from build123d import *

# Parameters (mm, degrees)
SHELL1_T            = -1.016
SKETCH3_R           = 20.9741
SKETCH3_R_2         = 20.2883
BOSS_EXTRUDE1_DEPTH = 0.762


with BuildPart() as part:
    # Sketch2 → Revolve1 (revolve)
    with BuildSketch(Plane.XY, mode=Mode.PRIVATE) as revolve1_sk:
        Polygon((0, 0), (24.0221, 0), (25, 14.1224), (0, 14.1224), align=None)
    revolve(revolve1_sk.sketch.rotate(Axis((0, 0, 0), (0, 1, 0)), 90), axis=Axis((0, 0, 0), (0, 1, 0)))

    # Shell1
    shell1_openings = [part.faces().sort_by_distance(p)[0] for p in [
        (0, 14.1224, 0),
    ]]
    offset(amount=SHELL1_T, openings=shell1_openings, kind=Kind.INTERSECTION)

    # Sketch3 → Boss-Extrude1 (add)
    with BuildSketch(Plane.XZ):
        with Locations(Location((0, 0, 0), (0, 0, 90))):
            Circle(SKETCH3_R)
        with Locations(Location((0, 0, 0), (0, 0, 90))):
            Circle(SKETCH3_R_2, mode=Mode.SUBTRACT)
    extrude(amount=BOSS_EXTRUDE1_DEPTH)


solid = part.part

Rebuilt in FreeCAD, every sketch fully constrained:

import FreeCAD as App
import Part
import Sketcher
Q = App.Units.Quantity


def faces_at(feature, points):
    """Names of the faces that lie closest to the given points."""
    faces = feature.Shape.Faces
    near = lambda p: min(range(len(faces)), key=lambda i: faces[i].distToShape(Part.Vertex(*p))[0])
    return sorted({f"Face{near(p) + 1}" for p in points})

doc = App.newDocument("Part")
body = doc.addObject("PartDesign::Body", "Body")

# Sketch on XY plane
sketch1 = body.newObject("Sketcher::SketchObject", "Sketch")
sketch1.AttachmentSupport = (doc.getObject("XY_Plane"), [""])
sketch1.MapMode = "FlatFace"
sketch1.addGeometry(Part.LineSegment(App.Vector(0, 0, 0), App.Vector(24, 0, 0)), False)
sketch1.addGeometry(Part.LineSegment(App.Vector(24, 0, 0), App.Vector(25, 14, 0)), False)
sketch1.addGeometry(Part.LineSegment(App.Vector(25, 14, 0), App.Vector(0, 14, 0)), False)
sketch1.addGeometry(Part.LineSegment(App.Vector(0, 14, 0), App.Vector(0, 0, 0)), False)
sketch1.addConstraint(Sketcher.Constraint("Coincident", 0, 2, 1, 1))
sketch1.addConstraint(Sketcher.Constraint("Coincident", 1, 2, 2, 1))
sketch1.addConstraint(Sketcher.Constraint("Coincident", 2, 2, 3, 1))
sketch1.addConstraint(Sketcher.Constraint("Coincident", 3, 2, 0, 1))
sketch1.addConstraint(Sketcher.Constraint("Horizontal", 0))
sketch1.addConstraint(Sketcher.Constraint("Horizontal", 2))
sketch1.addConstraint(Sketcher.Constraint("Vertical", 3))
sketch1.addConstraint(Sketcher.Constraint("Coincident", 3, 2, -1, 1))
sketch1.addConstraint(Sketcher.Constraint("DistanceY", 3, 2, 3, 1, Q("0.556 in")))
sketch1.addConstraint(Sketcher.Constraint("DistanceX", 0, 1, 0, 2, 24.0221))
sketch1.addConstraint(Sketcher.Constraint("DistanceX", 2, 2, 2, 1, 25.0))
revolution = body.newObject("PartDesign::Revolution", "Revolution")
revolution.Profile = sketch1
revolution.ReferenceAxis = (sketch1, ["V_Axis"])
revolution.Angle = 360
doc.recompute()

thickness = body.newObject("PartDesign::Thickness", "Thickness")
thickness.Base = (revolution, faces_at(revolution, [(0, 14.122, 0)]))
thickness.Value = Q("0.04 in")
thickness.Reversed = True
thickness.Join = "Intersection"

# Sketch on XZ plane
sketch2 = body.newObject("Sketcher::SketchObject", "Sketch001")
sketch2.AttachmentSupport = (doc.getObject("XZ_Plane"), [""])
sketch2.MapMode = "FlatFace"
sketch2.addGeometry(Part.Circle(App.Vector(0, 0, 0), App.Vector(0, 0, 1), 21), False)
sketch2.addGeometry(Part.Circle(App.Vector(0, 0, 0), App.Vector(0, 0, 1), 20), False)
sketch2.addConstraint(Sketcher.Constraint("Coincident", 0, 3, -1, 1))
sketch2.addConstraint(Sketcher.Constraint("Coincident", 1, 3, -1, 1))
sketch2.addConstraint(Sketcher.Constraint("Diameter", 0, 41.9482))
sketch2.addConstraint(Sketcher.Constraint("Diameter", 1, 40.5766))
pad1 = body.newObject("PartDesign::Pad", "Pad")
pad1.Profile = sketch2
pad1.Length = Q("0.03 in")

doc.recompute()
